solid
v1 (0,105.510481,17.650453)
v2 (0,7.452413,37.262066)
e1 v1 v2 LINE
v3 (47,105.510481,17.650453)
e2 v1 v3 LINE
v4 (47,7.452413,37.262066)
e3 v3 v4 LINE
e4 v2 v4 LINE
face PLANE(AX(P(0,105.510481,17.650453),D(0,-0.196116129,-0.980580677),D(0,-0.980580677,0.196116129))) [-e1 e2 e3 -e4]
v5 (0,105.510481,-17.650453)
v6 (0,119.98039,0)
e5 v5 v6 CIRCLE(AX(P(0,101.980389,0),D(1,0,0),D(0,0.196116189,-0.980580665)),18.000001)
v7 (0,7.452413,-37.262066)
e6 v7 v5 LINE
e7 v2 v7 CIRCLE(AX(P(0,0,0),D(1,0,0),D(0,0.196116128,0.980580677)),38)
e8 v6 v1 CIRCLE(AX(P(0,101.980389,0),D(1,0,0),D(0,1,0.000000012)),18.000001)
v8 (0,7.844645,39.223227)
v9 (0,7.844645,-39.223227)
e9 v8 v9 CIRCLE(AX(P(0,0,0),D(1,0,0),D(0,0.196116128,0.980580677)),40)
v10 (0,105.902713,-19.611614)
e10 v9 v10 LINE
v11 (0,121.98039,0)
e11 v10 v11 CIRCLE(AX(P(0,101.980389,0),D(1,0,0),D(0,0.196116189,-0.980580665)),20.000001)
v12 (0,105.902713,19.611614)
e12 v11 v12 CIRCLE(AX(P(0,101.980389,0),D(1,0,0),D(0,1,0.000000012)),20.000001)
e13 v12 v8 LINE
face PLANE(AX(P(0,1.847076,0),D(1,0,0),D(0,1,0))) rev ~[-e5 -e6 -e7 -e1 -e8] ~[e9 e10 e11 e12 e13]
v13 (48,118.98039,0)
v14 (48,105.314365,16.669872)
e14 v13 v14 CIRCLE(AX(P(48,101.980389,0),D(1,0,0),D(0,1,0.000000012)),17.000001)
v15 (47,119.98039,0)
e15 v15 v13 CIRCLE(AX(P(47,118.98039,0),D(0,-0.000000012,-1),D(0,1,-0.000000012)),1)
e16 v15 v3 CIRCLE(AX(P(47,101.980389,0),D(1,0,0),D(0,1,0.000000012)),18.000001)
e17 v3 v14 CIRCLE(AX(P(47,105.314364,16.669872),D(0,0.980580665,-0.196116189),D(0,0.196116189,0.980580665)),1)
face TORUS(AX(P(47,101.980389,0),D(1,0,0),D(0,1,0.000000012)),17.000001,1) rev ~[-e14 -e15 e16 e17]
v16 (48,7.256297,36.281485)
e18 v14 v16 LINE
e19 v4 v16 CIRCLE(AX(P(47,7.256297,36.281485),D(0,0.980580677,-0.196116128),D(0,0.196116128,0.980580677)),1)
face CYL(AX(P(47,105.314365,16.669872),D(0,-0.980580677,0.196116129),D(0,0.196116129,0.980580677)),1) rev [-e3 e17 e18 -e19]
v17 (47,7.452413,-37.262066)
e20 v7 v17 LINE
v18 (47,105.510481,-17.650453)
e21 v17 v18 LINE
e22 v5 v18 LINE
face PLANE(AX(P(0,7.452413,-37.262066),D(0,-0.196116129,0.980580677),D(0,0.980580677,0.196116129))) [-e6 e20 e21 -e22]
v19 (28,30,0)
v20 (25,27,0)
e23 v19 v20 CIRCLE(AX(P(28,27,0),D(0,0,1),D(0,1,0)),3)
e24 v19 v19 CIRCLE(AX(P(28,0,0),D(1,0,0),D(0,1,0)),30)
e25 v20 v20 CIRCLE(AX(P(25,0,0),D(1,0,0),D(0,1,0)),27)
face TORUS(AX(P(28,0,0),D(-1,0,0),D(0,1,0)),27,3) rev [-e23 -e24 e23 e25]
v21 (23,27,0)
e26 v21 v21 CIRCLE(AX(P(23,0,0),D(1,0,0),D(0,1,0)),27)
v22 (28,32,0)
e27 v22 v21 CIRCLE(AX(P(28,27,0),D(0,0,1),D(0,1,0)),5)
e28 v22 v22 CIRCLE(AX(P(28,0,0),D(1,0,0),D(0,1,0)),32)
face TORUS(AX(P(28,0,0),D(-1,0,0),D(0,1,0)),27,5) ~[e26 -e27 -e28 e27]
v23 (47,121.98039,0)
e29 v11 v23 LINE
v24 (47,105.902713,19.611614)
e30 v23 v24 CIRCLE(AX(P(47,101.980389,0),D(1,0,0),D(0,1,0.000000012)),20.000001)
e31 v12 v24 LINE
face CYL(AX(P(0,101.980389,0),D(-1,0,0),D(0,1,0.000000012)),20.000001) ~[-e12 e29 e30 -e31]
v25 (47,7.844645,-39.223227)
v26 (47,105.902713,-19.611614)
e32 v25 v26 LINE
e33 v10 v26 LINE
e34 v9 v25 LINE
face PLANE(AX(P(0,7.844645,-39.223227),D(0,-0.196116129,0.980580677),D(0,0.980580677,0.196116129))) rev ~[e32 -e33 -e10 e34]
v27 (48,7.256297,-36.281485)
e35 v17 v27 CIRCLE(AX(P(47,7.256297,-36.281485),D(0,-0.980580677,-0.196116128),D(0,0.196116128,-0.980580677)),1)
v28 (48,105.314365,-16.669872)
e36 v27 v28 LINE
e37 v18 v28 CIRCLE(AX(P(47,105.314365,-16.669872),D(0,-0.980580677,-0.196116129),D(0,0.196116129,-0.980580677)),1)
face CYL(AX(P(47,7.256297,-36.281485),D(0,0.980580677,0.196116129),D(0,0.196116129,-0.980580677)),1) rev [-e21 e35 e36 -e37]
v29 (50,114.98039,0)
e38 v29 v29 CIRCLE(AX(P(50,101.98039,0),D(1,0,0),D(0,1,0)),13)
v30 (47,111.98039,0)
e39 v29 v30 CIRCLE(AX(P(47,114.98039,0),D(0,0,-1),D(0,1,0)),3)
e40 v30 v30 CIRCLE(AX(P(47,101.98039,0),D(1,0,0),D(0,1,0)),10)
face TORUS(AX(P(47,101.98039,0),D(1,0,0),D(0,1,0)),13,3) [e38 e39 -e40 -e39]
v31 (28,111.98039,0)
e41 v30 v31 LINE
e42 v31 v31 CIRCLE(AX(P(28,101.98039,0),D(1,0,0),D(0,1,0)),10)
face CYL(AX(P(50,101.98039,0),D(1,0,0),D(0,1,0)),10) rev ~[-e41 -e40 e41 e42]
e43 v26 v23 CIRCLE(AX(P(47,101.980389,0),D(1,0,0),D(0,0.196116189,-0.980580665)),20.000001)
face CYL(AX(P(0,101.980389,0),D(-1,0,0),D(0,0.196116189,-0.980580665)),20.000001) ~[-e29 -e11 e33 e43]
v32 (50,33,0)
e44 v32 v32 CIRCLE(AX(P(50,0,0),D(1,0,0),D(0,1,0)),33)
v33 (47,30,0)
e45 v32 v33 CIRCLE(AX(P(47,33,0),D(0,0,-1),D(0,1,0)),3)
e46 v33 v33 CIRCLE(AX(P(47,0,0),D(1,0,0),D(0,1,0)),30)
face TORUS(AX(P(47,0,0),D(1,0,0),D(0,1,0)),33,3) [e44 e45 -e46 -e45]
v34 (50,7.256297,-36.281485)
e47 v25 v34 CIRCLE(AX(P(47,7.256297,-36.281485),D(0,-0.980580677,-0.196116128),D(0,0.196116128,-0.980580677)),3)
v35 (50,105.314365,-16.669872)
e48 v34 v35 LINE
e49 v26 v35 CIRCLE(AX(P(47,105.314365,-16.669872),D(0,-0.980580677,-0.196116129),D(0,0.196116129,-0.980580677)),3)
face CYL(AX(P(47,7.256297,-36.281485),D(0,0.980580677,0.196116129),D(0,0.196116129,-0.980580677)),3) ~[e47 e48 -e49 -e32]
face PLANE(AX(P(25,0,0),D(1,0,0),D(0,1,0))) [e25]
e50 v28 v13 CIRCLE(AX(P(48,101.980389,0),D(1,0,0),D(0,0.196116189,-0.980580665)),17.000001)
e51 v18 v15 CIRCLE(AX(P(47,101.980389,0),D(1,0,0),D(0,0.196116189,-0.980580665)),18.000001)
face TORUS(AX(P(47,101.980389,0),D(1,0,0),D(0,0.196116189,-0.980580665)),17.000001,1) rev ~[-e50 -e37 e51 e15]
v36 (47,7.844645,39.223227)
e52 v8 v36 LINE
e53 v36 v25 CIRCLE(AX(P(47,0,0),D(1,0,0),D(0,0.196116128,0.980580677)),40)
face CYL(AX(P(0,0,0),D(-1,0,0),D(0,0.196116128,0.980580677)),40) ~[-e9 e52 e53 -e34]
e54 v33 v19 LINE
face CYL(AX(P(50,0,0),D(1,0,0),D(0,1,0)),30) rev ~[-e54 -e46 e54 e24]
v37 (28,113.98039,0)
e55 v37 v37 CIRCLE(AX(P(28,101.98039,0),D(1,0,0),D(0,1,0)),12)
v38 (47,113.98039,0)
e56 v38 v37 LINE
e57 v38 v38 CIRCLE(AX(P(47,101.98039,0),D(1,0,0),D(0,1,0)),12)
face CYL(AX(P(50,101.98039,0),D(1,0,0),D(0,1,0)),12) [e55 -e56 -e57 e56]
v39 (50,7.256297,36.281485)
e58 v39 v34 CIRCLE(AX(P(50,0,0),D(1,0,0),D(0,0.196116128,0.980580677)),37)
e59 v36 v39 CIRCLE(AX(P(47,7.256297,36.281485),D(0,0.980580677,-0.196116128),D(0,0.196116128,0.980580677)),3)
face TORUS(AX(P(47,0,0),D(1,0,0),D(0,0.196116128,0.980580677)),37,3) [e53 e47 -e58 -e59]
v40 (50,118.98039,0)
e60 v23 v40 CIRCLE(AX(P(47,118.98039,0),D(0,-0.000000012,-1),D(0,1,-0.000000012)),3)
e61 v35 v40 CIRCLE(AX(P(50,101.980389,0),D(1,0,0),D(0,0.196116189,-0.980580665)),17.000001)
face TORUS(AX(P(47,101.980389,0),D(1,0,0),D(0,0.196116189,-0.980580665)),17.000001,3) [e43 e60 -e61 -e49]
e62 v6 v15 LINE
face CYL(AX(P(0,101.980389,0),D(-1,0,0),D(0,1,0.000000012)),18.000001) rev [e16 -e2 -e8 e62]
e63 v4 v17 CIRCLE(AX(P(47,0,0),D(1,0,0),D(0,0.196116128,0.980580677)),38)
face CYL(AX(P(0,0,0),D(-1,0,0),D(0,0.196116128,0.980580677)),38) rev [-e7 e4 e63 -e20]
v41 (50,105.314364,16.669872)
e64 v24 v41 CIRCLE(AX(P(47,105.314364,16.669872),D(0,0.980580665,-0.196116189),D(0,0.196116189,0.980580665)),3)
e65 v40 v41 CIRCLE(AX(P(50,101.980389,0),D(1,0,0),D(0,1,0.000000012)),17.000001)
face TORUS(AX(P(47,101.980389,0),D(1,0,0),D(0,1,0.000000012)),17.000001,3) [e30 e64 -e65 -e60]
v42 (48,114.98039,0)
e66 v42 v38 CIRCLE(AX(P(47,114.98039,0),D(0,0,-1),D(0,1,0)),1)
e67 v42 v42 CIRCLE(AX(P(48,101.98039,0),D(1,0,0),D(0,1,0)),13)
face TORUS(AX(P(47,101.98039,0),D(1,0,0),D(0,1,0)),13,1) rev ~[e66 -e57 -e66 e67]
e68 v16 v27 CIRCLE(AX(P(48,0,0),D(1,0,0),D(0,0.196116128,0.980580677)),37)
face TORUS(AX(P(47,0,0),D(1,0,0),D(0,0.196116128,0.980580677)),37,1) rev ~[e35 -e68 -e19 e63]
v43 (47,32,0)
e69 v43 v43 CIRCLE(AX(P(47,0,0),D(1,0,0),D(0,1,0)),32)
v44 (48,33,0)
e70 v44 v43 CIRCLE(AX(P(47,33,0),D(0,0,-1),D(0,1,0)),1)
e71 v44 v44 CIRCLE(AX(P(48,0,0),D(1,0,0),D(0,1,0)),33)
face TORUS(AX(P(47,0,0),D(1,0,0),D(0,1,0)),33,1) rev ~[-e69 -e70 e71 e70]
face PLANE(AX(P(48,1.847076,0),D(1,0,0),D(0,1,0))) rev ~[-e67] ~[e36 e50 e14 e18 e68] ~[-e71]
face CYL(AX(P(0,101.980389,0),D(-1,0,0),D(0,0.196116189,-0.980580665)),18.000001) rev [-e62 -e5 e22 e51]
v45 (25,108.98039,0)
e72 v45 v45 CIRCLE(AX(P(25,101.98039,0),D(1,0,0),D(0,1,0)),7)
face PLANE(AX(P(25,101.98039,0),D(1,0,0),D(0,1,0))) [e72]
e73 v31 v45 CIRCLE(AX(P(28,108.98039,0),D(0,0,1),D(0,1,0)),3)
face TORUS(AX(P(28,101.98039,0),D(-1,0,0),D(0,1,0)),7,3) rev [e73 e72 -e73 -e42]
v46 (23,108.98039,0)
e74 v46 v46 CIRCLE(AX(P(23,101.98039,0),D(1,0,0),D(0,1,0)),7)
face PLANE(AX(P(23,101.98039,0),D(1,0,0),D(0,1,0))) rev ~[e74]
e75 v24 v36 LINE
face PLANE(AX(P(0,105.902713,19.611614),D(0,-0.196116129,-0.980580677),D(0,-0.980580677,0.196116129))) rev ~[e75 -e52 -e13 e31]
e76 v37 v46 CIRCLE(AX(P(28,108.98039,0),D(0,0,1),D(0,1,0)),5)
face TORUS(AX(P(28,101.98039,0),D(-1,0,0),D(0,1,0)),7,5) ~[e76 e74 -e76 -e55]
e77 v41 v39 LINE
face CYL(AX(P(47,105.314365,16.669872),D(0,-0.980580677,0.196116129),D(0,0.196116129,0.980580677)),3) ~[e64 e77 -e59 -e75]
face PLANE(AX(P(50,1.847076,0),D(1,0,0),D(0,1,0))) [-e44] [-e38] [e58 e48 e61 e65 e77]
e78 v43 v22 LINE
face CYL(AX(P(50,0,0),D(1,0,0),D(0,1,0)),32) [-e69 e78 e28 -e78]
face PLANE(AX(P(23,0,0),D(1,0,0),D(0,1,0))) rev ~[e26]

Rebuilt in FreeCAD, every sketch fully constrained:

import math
import FreeCAD as App
import Part
import Sketcher

V = App.Vector
Q = App.Units.Quantity


def edges_at(feature, points):
    """Names of the edges that pass closest to the given points."""
    edges = feature.Shape.Edges
    near = lambda p: min(range(len(edges)), key=lambda i: edges[i].distToShape(Part.Vertex(*p))[0])
    return sorted({f"Edge{near(p) + 1}" for p in points})


def faces_at(feature, points):
    """Names of the faces that lie closest to the given points."""
    faces = feature.Shape.Faces
    near = lambda p: min(range(len(faces)), key=lambda i: faces[i].distToShape(Part.Vertex(*p))[0])
    return sorted({f"Face{near(p) + 1}" for p in points})

doc = App.newDocument("Part")
body = doc.addObject("PartDesign::Body", "Body")

# Sketch on YZ plane
sketch1 = body.newObject("Sketcher::SketchObject", "Sketch")
sketch1.AttachmentSupport = (doc.getObject("YZ_Plane"), [""])
sketch1.MapMode = "FlatFace"
sketch1.addGeometry([
    Part.ArcOfCircle(Part.Circle(V(0, 0, 0), V(0, 0, 1), 40), math.radians(79), math.radians(281)),  # 0
    Part.LineSegment(V(8, -39, 0), V(106, -20, 0)),  # 1
    Part.ArcOfCircle(Part.Circle(V(102, 0, 0), V(0, 0, 1), 20), math.radians(-79), math.radians(0)),  # 2
    Part.ArcOfCircle(Part.Circle(V(102, 0, 0), V(0, 0, 1), 20), math.radians(0), math.radians(79)),  # 3
    Part.LineSegment(V(106, 20, 0), V(8, 39, 0)),  # 4
], False)
sketch1.addConstraint([
    Sketcher.Constraint("Tangent", 0, 2, 1, 1),
    Sketcher.Constraint("Tangent", 1, 2, 2, 1),
    Sketcher.Constraint("Tangent", 2, 2, 3, 1),
    Sketcher.Constraint("Tangent", 3, 2, 4, 1),
    Sketcher.Constraint("Tangent", 4, 2, 0, 1),
    Sketcher.Constraint("Coincident", 0, 3, -1, 1),
    Sketcher.Constraint("Equal", 2, 3),
    Sketcher.Constraint("PointOnObject", 2, 3, -1),
    Sketcher.Constraint("PointOnObject", 2, 2, -1),
    Sketcher.Constraint("Radius", 0, Q("40 mm")),
    Sketcher.Constraint("Radius", 2, Q("20.000001 mm")),
    Sketcher.Constraint("Distance", 1, Q("100 mm")),
])
pad1 = body.newObject("PartDesign::Pad", "Pad")
pad1.Profile = sketch1
pad1.Length = 50

# Sketch on YZ plane
sketch2 = body.newObject("Sketcher::SketchObject", "Sketch001")
sketch2.AttachmentSupport = (doc.getObject("YZ_Plane"), [""])
sketch2.MapMode = "FlatFace"
sketch2.AttachmentOffset = App.Placement(V(0, 0, 50), App.Rotation())
sketch2.addGeometry([
    Part.Circle(V(0, 0, 0), V(0, 0, 1), 30),
    Part.Circle(V(102, 0, 0), V(0, 0, 1), 10),
], False)
sketch2.addConstraint([
    Sketcher.Constraint("Coincident", 0, 3, -1, 1),
    Sketcher.Constraint("PointOnObject", 1, 3, -1),
    Sketcher.Constraint("Diameter", 0, Q("60 mm")),
    Sketcher.Constraint("Diameter", 1, Q("20 mm")),
    Sketcher.Constraint("DistanceX", -1, 1, 1, 3, Q("101.98039 mm")),
])
pocket1 = body.newObject("PartDesign::Pocket", "Pocket")
pocket1.Profile = sketch2
pocket1.Length = 25
doc.recompute()

fillet = body.newObject("PartDesign::Fillet", "Fillet")
fillet.Base = (pocket1, edges_at(pocket1, [
    (50, -40, 0),
    (50, 56.874, -29.417),
    (50, 56.874, 29.417),
    (50, 117.447, 12.68),
    (50, -30, 0),
    (50, 91.98, 0),
    (25, -30, 0),
    (25, 91.98, 0),
]))
fillet.Radius = 3
doc.recompute()

thickness = body.newObject("PartDesign::Thickness", "Thickness")
thickness.Base = (fillet, faces_at(fillet, [(0, 40.99, 0)]))
thickness.Value = 2
thickness.Reversed = True
thickness.Join = "Arc"

doc.recompute()
